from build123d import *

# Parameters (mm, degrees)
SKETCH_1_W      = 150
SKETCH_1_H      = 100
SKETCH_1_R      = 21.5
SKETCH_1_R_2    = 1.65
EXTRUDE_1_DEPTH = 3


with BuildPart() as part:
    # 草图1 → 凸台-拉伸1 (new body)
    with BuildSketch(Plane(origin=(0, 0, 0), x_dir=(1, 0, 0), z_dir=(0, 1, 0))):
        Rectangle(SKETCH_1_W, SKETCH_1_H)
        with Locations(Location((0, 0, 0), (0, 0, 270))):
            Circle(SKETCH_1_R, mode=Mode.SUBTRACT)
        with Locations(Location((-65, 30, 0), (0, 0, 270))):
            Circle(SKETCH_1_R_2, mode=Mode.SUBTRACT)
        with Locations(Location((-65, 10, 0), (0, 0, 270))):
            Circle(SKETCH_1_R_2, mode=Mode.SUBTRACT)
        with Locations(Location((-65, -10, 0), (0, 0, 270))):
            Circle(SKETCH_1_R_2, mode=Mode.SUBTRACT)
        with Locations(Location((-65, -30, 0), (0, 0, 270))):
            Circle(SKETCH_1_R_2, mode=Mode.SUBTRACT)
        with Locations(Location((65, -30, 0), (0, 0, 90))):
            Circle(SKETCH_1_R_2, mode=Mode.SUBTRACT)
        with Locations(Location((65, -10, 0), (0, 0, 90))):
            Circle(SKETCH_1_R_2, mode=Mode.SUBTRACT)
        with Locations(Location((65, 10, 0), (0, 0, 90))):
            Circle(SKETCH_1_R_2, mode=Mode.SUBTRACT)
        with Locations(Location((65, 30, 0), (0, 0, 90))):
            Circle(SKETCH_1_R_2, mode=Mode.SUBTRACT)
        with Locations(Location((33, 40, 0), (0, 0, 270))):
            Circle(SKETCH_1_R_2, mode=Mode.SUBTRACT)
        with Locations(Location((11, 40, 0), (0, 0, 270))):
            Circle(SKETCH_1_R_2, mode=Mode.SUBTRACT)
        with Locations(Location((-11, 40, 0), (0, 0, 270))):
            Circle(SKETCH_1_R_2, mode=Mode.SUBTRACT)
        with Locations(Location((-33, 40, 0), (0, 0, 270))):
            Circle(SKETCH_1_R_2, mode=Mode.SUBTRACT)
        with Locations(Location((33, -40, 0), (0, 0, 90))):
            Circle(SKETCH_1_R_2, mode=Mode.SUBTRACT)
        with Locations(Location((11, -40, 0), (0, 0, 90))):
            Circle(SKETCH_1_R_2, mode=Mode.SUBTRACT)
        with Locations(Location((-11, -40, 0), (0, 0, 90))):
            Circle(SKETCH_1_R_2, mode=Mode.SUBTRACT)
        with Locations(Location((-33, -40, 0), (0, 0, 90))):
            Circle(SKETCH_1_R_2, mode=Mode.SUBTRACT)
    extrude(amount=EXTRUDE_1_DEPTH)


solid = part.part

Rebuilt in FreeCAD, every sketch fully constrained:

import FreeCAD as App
import Part
import Sketcher
from FreeCAD import Vector
Q = App.Units.Quantity


def add_polygon(sketch, points):
    """Adds a closed chain of lines whose ends are joined by coincident constraints."""
    first, n = sketch.GeometryCount, len(points)
    for a, b in zip(points, points[1:] + points[:1]):
        sketch.addGeometry(Part.LineSegment(App.Vector(*a, 0), App.Vector(*b, 0)), False)
    for i in range(n):
        sketch.addConstraint(Sketcher.Constraint("Coincident", first + i, 2, first + (i + 1) % n, 1))

doc = App.newDocument("Part")
body = doc.addObject("PartDesign::Body", "Body")

sketch1 = body.newObject("Sketcher::SketchObject", "Sketch")
sketch1.AttachmentSupport = (doc.getObject("XZ_Plane"), [""])
sketch1.MapMode = "FlatFace"
add_polygon(sketch1, [(-75, -50), (-75, 50), (75, 50), (75, -50)])
sketch1.addGeometry(Part.Circle(Vector(-65, 30, 0), Vector(0, 0, 1), 1.6), False)
sketch1.addGeometry(Part.Circle(Vector(-33, 40, 0), Vector(0, 0, 1), 1.6), False)
sketch1.addGeometry(Part.Circle(Vector(-11, 40, 0), Vector(0, 0, 1), 1.6), False)
sketch1.addGeometry(Part.Circle(Vector(-65, 10, 0), Vector(0, 0, 1), 1.6), False)
sketch1.addGeometry(Part.Circle(Vector(11, 40, 0), Vector(0, 0, 1), 1.6), False)
sketch1.addGeometry(Part.Circle(Vector(33, 40, 0), Vector(0, 0, 1), 1.6), False)
sketch1.addGeometry(Part.Circle(Vector(65, 30, 0), Vector(0, 0, 1), 1.6), False)
sketch1.addGeometry(Part.Circle(Vector(65, 10, 0), Vector(0, 0, 1), 1.6), False)
sketch1.addGeometry(Part.Circle(Vector(-65, -10, 0), Vector(0, 0, 1), 1.6), False)
sketch1.addGeometry(Part.Circle(Vector(-65, -30, 0), Vector(0, 0, 1), 1.6), False)
sketch1.addGeometry(Part.Circle(Vector(-33, -40, 0), Vector(0, 0, 1), 1.6), False)
sketch1.addGeometry(Part.Circle(Vector(-11, -40, 0), Vector(0, 0, 1), 1.6), False)
sketch1.addGeometry(Part.Circle(Vector(0, 0, 0), Vector(0, 0, 1), 21.5), False)
sketch1.addGeometry(Part.Circle(Vector(65, -10, 0), Vector(0, 0, 1), 1.6), False)
sketch1.addGeometry(Part.Circle(Vector(11, -40, 0), Vector(0, 0, 1), 1.6), False)
sketch1.addGeometry(Part.Circle(Vector(33, -40, 0), Vector(0, 0, 1), 1.6), False)
sketch1.addGeometry(Part.Circle(Vector(65, -30, 0), Vector(0, 0, 1), 1.6), False)
sketch1.addConstraint([
    Sketcher.Constraint("Vertical", 0),
    Sketcher.Constraint("Horizontal", 1),
    Sketcher.Constraint("Vertical", 2),
    Sketcher.Constraint("Horizontal", 3),
    Sketcher.Constraint("Coincident", 16, 3, -1, 1),
    Sketcher.Constraint("Equal", 4, 5),
    Sketcher.Constraint("Equal", 5, 6),
    Sketcher.Constraint("Equal", 6, 7),
    Sketcher.Constraint("Equal", 7, 8),
    Sketcher.Constraint("Equal", 8, 9),
    Sketcher.Constraint("Equal", 9, 10),
    Sketcher.Constraint("Equal", 10, 11),
    Sketcher.Constraint("Equal", 11, 12),
    Sketcher.Constraint("Equal", 12, 13),
    Sketcher.Constraint("Equal", 13, 14),
    Sketcher.Constraint("Equal", 14, 15),
    Sketcher.Constraint("Equal", 15, 17),
    Sketcher.Constraint("Equal", 17, 18),
    Sketcher.Constraint("Equal", 18, 19),
    Sketcher.Constraint("Equal", 19, 20),
    Sketcher.Constraint("Symmetric", 11, 3, 12, 3, -1, 1),
    Sketcher.Constraint("Symmetric", 10, 3, 13, 3, -1, 1),
    Sketcher.Constraint("Symmetric", 9, 3, 14, 3, -1, 1),
    Sketcher.Constraint("Symmetric", 8, 3, 15, 3, -1, 1),
    Sketcher.Constraint("Symmetric", 7, 3, 17, 3, -1, 1),
    Sketcher.Constraint("Symmetric", 6, 3, 18, 3, -1, 1),
    Sketcher.Constraint("Symmetric", 5, 3, 19, 3, -1, 1),
    Sketcher.Constraint("Symmetric", 4, 3, 20, 3, -1, 1),
    Sketcher.Constraint("Symmetric", 0, 2, 2, 2, -1, 1),
    Sketcher.Constraint("Symmetric", 6, 3, 8, 3, -2),
    Sketcher.Constraint("Symmetric", 5, 3, 9, 3, -2),
    Sketcher.Constraint("Symmetric", 4, 3, 10, 3, -2),
    Sketcher.Constraint("Symmetric", 7, 3, 11, 3, -2),
    Sketcher.Constraint("Horizontal", 5, 3, 6, 3),
    Sketcher.Constraint("Vertical", 4, 3, 7, 3),
    Sketcher.Constraint("Diameter", 16, Q("43 mm")),
    Sketcher.Constraint("Diameter", 4, Q("3.3 mm")),
    Sketcher.Constraint("DistanceX", 1, 1, 1, 2, Q("150 mm")),
    Sketcher.Constraint("DistanceY", 0, 1, 0, 2, Q("100 mm")),
    Sketcher.Constraint("DistanceX", 4, 3, -1, 1, Q("65 mm")),
    Sketcher.Constraint("DistanceY", -1, 1, 4, 3, Q("30 mm")),
    Sketcher.Constraint("DistanceX", 5, 3, -1, 1, Q("33 mm")),
    Sketcher.Constraint("DistanceY", -1, 1, 5, 3, Q("40 mm")),
    Sketcher.Constraint("DistanceX", 6, 3, -1, 1, Q("11 mm")),
    Sketcher.Constraint("DistanceY", -1, 1, 7, 3, Q("10 mm")),
])
pad1 = body.newObject("PartDesign::Pad", "Pad")
pad1.Profile = sketch1
pad1.Length = 3
pad1.Reversed = True

doc.recompute()
